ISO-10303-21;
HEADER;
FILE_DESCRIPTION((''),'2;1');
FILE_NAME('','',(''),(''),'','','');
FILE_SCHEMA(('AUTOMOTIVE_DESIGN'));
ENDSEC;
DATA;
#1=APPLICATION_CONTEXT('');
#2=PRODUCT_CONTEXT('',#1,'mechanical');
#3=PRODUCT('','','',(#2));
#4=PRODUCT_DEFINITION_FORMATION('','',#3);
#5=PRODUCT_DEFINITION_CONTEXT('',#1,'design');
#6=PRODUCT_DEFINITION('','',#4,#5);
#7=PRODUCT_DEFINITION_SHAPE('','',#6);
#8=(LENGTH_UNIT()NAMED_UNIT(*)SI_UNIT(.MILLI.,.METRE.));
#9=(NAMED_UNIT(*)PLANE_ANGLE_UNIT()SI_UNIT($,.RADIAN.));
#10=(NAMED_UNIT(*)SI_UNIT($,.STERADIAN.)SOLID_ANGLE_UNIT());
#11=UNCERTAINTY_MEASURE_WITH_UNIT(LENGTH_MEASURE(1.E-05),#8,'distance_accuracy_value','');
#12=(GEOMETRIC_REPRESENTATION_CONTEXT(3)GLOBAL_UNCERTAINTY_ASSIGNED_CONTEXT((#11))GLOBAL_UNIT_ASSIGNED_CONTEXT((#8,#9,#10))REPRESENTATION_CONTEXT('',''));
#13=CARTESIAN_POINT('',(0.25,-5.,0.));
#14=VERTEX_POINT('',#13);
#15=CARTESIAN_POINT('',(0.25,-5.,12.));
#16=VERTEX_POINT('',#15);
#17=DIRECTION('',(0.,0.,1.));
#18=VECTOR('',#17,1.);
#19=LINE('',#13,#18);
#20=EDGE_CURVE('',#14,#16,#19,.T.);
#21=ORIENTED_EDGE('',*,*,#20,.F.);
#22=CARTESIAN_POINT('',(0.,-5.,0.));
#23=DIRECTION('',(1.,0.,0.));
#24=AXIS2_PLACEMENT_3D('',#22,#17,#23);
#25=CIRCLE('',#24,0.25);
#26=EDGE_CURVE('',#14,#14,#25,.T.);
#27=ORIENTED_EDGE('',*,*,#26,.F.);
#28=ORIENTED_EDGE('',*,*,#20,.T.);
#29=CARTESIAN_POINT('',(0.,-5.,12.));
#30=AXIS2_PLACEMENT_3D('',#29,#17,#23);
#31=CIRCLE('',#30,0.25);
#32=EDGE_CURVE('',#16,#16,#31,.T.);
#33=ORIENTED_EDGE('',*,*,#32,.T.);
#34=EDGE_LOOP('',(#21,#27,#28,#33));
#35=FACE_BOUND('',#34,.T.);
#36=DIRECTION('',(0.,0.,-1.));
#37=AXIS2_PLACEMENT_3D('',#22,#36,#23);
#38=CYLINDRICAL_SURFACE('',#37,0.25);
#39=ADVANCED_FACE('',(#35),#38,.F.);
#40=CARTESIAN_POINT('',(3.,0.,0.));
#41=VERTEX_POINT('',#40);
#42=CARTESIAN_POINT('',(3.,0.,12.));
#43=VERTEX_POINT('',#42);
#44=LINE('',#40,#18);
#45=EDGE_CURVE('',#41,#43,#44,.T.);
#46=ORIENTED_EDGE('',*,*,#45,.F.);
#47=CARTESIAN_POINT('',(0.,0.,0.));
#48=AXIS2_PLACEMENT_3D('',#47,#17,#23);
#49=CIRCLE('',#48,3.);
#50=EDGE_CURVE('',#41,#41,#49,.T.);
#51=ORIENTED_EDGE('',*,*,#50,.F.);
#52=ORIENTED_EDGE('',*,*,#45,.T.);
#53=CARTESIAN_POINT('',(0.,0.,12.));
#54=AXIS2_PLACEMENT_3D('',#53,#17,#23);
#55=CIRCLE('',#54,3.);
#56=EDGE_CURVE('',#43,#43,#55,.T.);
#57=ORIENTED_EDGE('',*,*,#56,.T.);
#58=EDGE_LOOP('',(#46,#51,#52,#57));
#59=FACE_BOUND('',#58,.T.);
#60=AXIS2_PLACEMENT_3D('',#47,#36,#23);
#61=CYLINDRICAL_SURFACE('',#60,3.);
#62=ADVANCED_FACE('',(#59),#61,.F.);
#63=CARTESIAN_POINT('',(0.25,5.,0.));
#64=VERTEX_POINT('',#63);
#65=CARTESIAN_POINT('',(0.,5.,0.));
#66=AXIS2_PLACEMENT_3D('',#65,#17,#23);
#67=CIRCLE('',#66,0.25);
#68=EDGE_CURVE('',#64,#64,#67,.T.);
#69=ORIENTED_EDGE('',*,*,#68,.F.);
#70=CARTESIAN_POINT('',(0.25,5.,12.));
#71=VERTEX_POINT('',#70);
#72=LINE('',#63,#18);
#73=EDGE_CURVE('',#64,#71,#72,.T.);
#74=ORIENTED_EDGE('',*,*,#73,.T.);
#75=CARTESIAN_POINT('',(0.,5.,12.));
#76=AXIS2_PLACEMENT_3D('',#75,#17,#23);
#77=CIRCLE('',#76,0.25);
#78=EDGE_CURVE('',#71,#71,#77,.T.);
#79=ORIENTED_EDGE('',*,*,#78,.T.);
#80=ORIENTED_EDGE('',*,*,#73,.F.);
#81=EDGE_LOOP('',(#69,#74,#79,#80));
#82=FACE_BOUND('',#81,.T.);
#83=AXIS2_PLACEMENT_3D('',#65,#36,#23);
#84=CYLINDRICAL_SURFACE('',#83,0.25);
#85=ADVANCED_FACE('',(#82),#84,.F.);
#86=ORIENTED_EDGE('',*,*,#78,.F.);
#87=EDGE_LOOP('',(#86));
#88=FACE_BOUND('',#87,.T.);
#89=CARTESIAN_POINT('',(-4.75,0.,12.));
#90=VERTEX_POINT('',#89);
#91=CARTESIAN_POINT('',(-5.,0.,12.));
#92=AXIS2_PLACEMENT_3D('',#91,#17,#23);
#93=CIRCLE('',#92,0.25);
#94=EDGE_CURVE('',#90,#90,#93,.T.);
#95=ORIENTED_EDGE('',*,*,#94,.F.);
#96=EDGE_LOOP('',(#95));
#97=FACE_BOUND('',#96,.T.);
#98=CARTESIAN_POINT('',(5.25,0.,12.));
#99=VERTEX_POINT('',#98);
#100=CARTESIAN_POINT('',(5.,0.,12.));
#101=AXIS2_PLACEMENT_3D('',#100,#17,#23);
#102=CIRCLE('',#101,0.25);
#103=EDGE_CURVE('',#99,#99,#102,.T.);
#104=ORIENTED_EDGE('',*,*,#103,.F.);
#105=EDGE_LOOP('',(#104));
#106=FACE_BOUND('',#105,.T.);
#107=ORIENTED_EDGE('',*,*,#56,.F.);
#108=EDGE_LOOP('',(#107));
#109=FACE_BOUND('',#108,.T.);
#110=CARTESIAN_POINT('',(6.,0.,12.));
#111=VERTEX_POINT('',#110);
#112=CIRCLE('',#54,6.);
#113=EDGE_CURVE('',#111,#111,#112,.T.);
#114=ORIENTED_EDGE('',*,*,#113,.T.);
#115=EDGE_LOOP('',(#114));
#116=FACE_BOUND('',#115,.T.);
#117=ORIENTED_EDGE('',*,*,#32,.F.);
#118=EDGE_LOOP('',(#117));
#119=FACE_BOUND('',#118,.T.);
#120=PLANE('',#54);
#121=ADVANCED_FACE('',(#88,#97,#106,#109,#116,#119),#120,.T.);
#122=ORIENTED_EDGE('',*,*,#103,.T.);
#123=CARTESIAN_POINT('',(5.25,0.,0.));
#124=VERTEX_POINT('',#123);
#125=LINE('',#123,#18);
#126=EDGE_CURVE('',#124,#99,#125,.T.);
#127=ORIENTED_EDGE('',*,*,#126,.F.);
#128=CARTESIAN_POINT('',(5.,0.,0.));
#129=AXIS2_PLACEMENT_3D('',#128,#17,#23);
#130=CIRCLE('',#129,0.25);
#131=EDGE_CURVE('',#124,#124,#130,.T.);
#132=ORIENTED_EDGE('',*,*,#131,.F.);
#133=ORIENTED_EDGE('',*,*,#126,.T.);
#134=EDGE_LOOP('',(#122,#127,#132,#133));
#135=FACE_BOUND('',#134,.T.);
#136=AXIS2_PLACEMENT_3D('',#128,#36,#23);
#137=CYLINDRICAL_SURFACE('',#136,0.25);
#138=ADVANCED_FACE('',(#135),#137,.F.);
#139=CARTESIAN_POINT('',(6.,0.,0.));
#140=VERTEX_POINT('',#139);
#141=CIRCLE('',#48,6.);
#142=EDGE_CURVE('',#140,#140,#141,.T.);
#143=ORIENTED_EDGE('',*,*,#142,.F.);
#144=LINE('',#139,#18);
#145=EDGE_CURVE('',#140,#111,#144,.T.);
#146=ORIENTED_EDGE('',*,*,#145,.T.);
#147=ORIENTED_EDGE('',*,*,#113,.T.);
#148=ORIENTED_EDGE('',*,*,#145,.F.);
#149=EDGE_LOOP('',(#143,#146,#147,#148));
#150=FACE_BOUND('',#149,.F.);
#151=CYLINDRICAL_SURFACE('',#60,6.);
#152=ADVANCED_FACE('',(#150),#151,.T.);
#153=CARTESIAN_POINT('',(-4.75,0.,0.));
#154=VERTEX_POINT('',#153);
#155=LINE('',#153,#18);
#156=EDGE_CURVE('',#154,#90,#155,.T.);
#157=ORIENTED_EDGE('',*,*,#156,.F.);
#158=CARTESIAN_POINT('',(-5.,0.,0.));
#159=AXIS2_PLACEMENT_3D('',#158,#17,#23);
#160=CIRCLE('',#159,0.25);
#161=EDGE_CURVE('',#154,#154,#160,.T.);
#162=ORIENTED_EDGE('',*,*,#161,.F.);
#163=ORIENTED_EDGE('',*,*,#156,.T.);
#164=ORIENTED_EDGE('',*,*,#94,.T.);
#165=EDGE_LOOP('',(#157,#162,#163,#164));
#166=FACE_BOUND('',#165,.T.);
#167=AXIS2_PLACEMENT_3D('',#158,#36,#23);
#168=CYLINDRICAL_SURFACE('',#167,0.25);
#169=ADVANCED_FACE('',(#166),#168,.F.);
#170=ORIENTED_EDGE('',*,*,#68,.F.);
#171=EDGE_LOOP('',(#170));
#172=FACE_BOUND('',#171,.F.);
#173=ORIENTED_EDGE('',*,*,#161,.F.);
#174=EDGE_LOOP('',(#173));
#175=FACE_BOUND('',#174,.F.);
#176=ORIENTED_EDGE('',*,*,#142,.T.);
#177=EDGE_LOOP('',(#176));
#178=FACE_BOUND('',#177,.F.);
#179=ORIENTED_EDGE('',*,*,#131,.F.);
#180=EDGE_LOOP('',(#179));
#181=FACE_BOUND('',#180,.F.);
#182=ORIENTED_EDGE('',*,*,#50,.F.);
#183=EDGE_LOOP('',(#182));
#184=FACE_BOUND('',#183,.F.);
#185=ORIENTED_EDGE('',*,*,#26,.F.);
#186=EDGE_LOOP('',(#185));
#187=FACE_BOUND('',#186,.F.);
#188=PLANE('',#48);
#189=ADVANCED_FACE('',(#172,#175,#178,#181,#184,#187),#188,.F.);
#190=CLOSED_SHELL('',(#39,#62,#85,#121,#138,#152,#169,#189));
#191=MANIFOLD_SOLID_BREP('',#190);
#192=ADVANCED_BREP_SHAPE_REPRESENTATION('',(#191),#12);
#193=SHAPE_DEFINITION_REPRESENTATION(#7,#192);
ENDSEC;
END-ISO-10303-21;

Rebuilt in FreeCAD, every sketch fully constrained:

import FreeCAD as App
import Part
import Sketcher

V = App.Vector
Q = App.Units.Quantity

doc = App.newDocument("Part")
body = doc.addObject("PartDesign::Body", "Body")

sketch1 = body.newObject("Sketcher::SketchObject", "Sketch")
sketch1.AttachmentSupport = (doc.getObject("XY_Plane"), [""])
sketch1.MapMode = "FlatFace"
sketch1.addGeometry([
    Part.Circle(V(0, 0, 0), V(0, 0, 1), 6),
    Part.Circle(V(0, -5, 0), V(0, 0, 1), 0.25),
    Part.Circle(V(-5, 0, 0), V(0, 0, 1), 0.25),
    Part.Circle(V(0, 0, 0), V(0, 0, 1), 3),
    Part.Circle(V(5, 0, 0), V(0, 0, 1), 0.25),
    Part.Circle(V(0, 5, 0), V(0, 0, 1), 0.25),
], False)
sketch1.addConstraint([
    Sketcher.Constraint("Coincident", 0, 3, -1, 1),
    Sketcher.Constraint("Coincident", 3, 3, -1, 1),
    Sketcher.Constraint("Equal", 1, 2),
    Sketcher.Constraint("Equal", 2, 4),
    Sketcher.Constraint("Equal", 4, 5),
    Sketcher.Constraint("Symmetric", 2, 3, 4, 3, -1, 1),
    Sketcher.Constraint("Symmetric", 1, 3, 5, 3, -1, 1),
    Sketcher.Constraint("PointOnObject", 1, 3, -2),
    Sketcher.Constraint("PointOnObject", 2, 3, -1),
    Sketcher.Constraint("Diameter", 0, Q("12 mm")),
    Sketcher.Constraint("Diameter", 3, Q("6 mm")),
    Sketcher.Constraint("Diameter", 1, Q("0.5 mm")),
    Sketcher.Constraint("DistanceY", 1, 3, -1, 1, Q("5 mm")),
    Sketcher.Constraint("DistanceX", 2, 3, -1, 1, Q("5 mm")),
])
pad1 = body.newObject("PartDesign::Pad", "Pad")
pad1.Profile = sketch1
pad1.Length = 12

doc.recompute()
